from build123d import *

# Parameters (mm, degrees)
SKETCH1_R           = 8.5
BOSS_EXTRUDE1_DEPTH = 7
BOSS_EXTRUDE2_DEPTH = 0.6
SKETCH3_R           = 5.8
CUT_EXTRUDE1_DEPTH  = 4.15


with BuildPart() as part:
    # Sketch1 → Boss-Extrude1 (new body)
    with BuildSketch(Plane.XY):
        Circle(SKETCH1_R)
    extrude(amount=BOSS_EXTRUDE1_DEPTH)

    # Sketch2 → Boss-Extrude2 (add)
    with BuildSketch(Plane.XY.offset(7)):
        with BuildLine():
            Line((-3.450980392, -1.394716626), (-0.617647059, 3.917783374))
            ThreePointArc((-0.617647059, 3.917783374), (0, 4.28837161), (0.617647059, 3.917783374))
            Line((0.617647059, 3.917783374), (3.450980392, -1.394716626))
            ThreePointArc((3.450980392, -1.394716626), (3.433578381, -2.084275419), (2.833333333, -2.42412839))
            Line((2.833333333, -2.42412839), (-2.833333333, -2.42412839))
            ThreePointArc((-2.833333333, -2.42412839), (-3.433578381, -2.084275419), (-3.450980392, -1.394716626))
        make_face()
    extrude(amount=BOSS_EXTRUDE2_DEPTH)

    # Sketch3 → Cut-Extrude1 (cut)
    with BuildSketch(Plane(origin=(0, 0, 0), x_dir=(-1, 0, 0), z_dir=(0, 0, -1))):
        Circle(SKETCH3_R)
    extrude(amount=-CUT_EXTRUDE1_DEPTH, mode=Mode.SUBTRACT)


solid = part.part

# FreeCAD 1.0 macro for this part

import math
import FreeCAD as App
import Part
import Sketcher
from FreeCAD import Vector

doc = App.newDocument("Part")
body = doc.addObject("PartDesign::Body", "Body")

# Sketch on XY plane
sketch1 = doc.addObject("Sketcher::SketchObject", "Sketch")
body.addObject(sketch1)
sketch1.AttachmentSupport = (doc.XY_Plane, [""])
sketch1.MapMode = "FlatFace"
sketch1.addGeometry(Part.Circle(Vector(0, 0, 0), Vector(0, 0, 1), 8), False)
sketch1.addConstraint([
    Sketcher.Constraint("Coincident", 0, 3, -1, 1),
    Sketcher.Constraint("Diameter", 0, 17.0),
])
pad1 = doc.addObject("PartDesign::Pad", "Pad")
body.addObject(pad1)
pad1.Profile = sketch1
pad1.Length = 7

# Sketch on XY plane
sketch2 = doc.addObject("Sketcher::SketchObject", "Sketch001")
body.addObject(sketch2)
sketch2.AttachmentSupport = (doc.XY_Plane, [""])
sketch2.MapMode = "FlatFace"
sketch2.AttachmentOffset = App.Placement(Vector(0, 0, 7), App.Rotation())
sketch2.addGeometry([
    Part.LineSegment(Vector(-0.6, 3.9, 0), Vector(-3.5, -1.4, 0)),  # 0
    Part.ArcOfCircle(Part.Circle(Vector(-2.8, -1.7, 0), Vector(0, 0, 1), 0.7), math.radians(152), math.radians(270)),  # 1
    Part.LineSegment(Vector(-2.8, -2.4, 0), Vector(2.8, -2.4, 0)),  # 2
    Part.ArcOfCircle(Part.Circle(Vector(2.8, -1.7, 0), Vector(0, 0, 1), 0.7), math.radians(-90), math.radians(28)),  # 3
    Part.LineSegment(Vector(3.5, -1.4, 0), Vector(0.6, 3.9, 0)),  # 4
    Part.ArcOfCircle(Part.Circle(Vector(0, 3.6, 0), Vector(0, 0, 1), 0.7), math.radians(28), math.radians(152)),  # 5
], False)
sketch2.addConstraint([
    Sketcher.Constraint("Tangent", 0, 2, 1, 1),
    Sketcher.Constraint("Tangent", 1, 2, 2, 1),
    Sketcher.Constraint("Tangent", 2, 2, 3, 1),
    Sketcher.Constraint("Tangent", 3, 2, 4, 1),
    Sketcher.Constraint("Tangent", 4, 2, 5, 1),
    Sketcher.Constraint("Tangent", 5, 2, 0, 1),
    Sketcher.Constraint("Horizontal", 2),
    Sketcher.Constraint("Equal", 1, 3),
    Sketcher.Constraint("Equal", 3, 5),
    Sketcher.Constraint("Symmetric", 0, 2, 3, 2, -2),
    Sketcher.Constraint("Radius", 1, 0.7),
    Sketcher.Constraint("DistanceY", 1, 3, 5, 3, 5.3125),
    Sketcher.Constraint("DistanceX", 2, 1, 2, 2, 5.666667),
    Sketcher.Constraint("DistanceY", 1, 3, -1, 1, 1.724128),
])
pad2 = doc.addObject("PartDesign::Pad", "Pad001")
body.addObject(pad2)
pad2.Profile = sketch2
pad2.Length = 0.6

# Sketch on XY plane
sketch3 = doc.addObject("Sketcher::SketchObject", "Sketch002")
body.addObject(sketch3)
sketch3.AttachmentSupport = (doc.XY_Plane, [""])
sketch3.MapMode = "FlatFace"
sketch3.addGeometry(Part.Circle(Vector(0, 0, 0), Vector(0, 0, 1), 6), False)
sketch3.addConstraint([
    Sketcher.Constraint("Coincident", 0, 3, -1, 1),
    Sketcher.Constraint("Diameter", 0, 11.6),
])
pocket1 = doc.addObject("PartDesign::Pocket", "Pocket")
body.addObject(pocket1)
pocket1.Profile = sketch3
pocket1.Length = 4.15
pocket1.Reversed = True

doc.recompute()
